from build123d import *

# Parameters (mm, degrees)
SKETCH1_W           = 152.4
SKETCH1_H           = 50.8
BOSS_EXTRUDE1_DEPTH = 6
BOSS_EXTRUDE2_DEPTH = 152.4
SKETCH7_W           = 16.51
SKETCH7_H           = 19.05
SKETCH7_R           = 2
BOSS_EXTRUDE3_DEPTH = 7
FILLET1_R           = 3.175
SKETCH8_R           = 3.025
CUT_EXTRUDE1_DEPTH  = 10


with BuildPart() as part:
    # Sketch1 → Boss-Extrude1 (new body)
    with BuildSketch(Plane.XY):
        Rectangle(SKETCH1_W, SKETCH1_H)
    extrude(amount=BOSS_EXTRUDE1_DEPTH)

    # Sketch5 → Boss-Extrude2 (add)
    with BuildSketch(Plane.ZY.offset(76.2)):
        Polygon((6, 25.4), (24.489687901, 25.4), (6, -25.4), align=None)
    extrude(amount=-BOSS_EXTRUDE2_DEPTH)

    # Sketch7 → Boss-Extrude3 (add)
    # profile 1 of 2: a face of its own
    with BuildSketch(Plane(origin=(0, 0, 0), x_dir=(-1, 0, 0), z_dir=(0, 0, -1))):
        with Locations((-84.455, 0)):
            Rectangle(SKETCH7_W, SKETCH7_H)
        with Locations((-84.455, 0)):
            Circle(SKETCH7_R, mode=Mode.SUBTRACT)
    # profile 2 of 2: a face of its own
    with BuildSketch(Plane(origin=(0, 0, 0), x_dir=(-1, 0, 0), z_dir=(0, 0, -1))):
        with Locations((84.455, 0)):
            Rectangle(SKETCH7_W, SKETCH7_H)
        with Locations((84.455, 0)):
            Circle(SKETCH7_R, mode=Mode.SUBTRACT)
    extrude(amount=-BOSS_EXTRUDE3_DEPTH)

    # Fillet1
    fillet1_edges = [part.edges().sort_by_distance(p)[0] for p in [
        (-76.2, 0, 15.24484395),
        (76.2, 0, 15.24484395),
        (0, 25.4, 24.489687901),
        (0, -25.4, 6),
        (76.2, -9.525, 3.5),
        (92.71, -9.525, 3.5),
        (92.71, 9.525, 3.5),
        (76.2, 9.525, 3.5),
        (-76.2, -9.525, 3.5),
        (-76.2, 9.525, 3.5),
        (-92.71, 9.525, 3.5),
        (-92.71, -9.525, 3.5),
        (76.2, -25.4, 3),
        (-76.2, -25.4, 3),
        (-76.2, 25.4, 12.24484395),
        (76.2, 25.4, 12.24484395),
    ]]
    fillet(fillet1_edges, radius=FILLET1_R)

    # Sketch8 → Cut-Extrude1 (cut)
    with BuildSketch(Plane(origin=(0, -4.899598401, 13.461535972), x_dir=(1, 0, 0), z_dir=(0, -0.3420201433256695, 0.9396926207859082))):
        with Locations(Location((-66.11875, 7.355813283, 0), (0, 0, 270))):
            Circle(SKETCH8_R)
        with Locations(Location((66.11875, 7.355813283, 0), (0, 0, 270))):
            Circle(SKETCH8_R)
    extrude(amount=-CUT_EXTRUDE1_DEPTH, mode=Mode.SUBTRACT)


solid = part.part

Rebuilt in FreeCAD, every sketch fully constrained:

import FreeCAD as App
import Part
import Sketcher
Q = App.Units.Quantity


def edges_at(feature, points):
    """Names of the edges that pass closest to the given points."""
    edges = feature.Shape.Edges
    near = lambda p: min(range(len(edges)), key=lambda i: edges[i].distToShape(Part.Vertex(*p))[0])
    return sorted({f"Edge{near(p) + 1}" for p in points})


def add_polygon(sketch, points):
    """Adds a closed chain of lines whose ends are joined by coincident constraints."""
    first, n = sketch.GeometryCount, len(points)
    for a, b in zip(points, points[1:] + points[:1]):
        sketch.addGeometry(Part.LineSegment(App.Vector(*a, 0), App.Vector(*b, 0)), False)
    for i in range(n):
        sketch.addConstraint(Sketcher.Constraint("Coincident", first + i, 2, first + (i + 1) % n, 1))

doc = App.newDocument("Part")
body = doc.addObject("PartDesign::Body", "Body")

sketch1 = doc.addObject("Sketcher::SketchObject", "Sketch")
body.addObject(sketch1)
sketch1.AttachmentSupport = (doc.XY_Plane, [""])
sketch1.MapMode = "FlatFace"
add_polygon(sketch1, [(-76, 25), (-76, -25), (76, -25), (76, 25)])
sketch1.addConstraint([
    Sketcher.Constraint("Vertical", 0),
    Sketcher.Constraint("Horizontal", 1),
    Sketcher.Constraint("Vertical", 2),
    Sketcher.Constraint("Horizontal", 3),
    Sketcher.Constraint("Symmetric", 0, 2, 2, 2, -1, 1),
    Sketcher.Constraint("DistanceX", 1, 1, 1, 2, Q("6 in")),
    Sketcher.Constraint("DistanceY", 0, 2, 0, 1, Q("2 in")),
])
pad1 = doc.addObject("PartDesign::Pad", "Pad")
body.addObject(pad1)
pad1.Profile = sketch1
pad1.Length = 6

sketch2 = doc.addObject("Sketcher::SketchObject", "Sketch001")
body.addObject(sketch2)
sketch2.AttachmentSupport = (doc.YZ_Plane, [""])
sketch2.MapMode = "FlatFace"
sketch2.AttachmentOffset = App.Placement(App.Vector(0, 0, -3 * 25.4), App.Rotation())
add_polygon(sketch2, [(25, 24), (25, 6), (-25, 6)])
sketch2.addConstraint([
    Sketcher.Constraint("Vertical", 0),
    Sketcher.Constraint("Horizontal", 1),
    Sketcher.Constraint("DistanceX", 1, 2, 1, 1, Q("2 in")),
    Sketcher.Constraint("DistanceX", -1, 1, 0, 2, Q("1 in")),
    Sketcher.Constraint("Angle", 2, Q("20 deg")),
    Sketcher.Constraint("DistanceY", -1, 1, 0, 2, Q("6 mm")),
])
pad2 = doc.addObject("PartDesign::Pad", "Pad001")
body.addObject(pad2)
pad2.Profile = sketch2
pad2.Length = Q("6 in")

sketch3 = doc.addObject("Sketcher::SketchObject", "Sketch002")
body.addObject(sketch3)
sketch3.AttachmentSupport = (doc.XY_Plane, [""])
sketch3.MapMode = "FlatFace"
add_polygon(sketch3, [(92.7, 9.5), (92.7, -9.5), (76.2, -9.5), (76.2, 9.5)])
sketch3.addGeometry(Part.Circle(App.Vector(84.5, 0, 0), App.Vector(0, 0, 1), 2), False)
add_polygon(sketch3, [(-76.2, 9.5), (-76.2, -9.5), (-92.7, -9.5), (-92.7, 9.5)])
sketch3.addGeometry(Part.Circle(App.Vector(-84.5, 0, 0), App.Vector(0, 0, 1), 2), False)
sketch3.addConstraint([
    Sketcher.Constraint("Vertical", 0),
    Sketcher.Constraint("Horizontal", 1),
    Sketcher.Constraint("Vertical", 2),
    Sketcher.Constraint("Horizontal", 3),
    Sketcher.Constraint("Vertical", 5),
    Sketcher.Constraint("Horizontal", 6),
    Sketcher.Constraint("Vertical", 7),
    Sketcher.Constraint("Horizontal", 8),
    Sketcher.Constraint("Equal", 4, 9),
    Sketcher.Constraint("Symmetric", 4, 3, 9, 3, -1, 1),
    Sketcher.Constraint("Symmetric", 2, 2, 5, 2, -1, 1),
    Sketcher.Constraint("Symmetric", 0, 2, 7, 2, -1, 1),
    Sketcher.Constraint("PointOnObject", 4, 3, -1),
    Sketcher.Constraint("Horizontal", 1, 2, 5, 2),
    Sketcher.Constraint("DistanceX", -1, 1, 1, 2, Q("3 in")),
    Sketcher.Constraint("DistanceX", 1, 2, 1, 1, Q("0.65 in")),
    Sketcher.Constraint("DistanceY", 0, 2, 0, 1, Q("0.75 in")),
    Sketcher.Constraint("Diameter", 4, Q("4 mm")),
    Sketcher.Constraint("DistanceX", 9, 3, 4, 3, Q("6.65 in")),
])
pad3 = doc.addObject("PartDesign::Pad", "Pad002")
body.addObject(pad3)
pad3.Profile = sketch3
pad3.Length = 7
doc.recompute()

fillet = doc.addObject("PartDesign::Fillet", "Fillet")
body.addObject(fillet)
fillet.Base = (pad3, edges_at(pad3, [
    (-76.2, 0, 15.245),
    (76.2, 0, 15.245),
    (0, 25.4, 24.49),
    (0, -25.4, 6),
    (76.2, -9.525, 3.5),
    (92.71, -9.525, 3.5),
    (92.71, 9.525, 3.5),
    (76.2, 9.525, 3.5),
    (-76.2, -9.525, 3.5),
    (-76.2, 9.525, 3.5),
    (-92.71, 9.525, 3.5),
    (-92.71, -9.525, 3.5),
    (76.2, -25.4, 3),
    (-76.2, -25.4, 3),
    (-76.2, 25.4, 12.245),
    (76.2, 25.4, 12.245),
]))
fillet.Radius = Q("0.125 in")

sketch4 = doc.addObject("Sketcher::SketchObject", "Sketch003")
body.addObject(sketch4)
sketch4.Placement = App.Placement(App.Vector(0, -4.899598, 13.461536), App.Rotation(App.Vector(1, 0, 0), App.Vector(0, 0.939692621, 0.342020143), App.Vector(0, -0.342020143, 0.939692621), "ZXY"))
sketch4.addGeometry([
    Part.Circle(App.Vector(-66.1, 7.4, 0), App.Vector(0, 0, 1), 3),
    Part.Circle(App.Vector(66.1, 7.4, 0), App.Vector(0, 0, 1), 3),
], False)
sketch4.addConstraint([
    Sketcher.Constraint("Equal", 0, 1),
    Sketcher.Constraint("Symmetric", 0, 3, 1, 3, -2),
    Sketcher.Constraint("Diameter", 0, Q("6.05 mm")),
    Sketcher.Constraint("DistanceX", 0, 3, 1, 3, Q("132.2375 mm")),
    Sketcher.Constraint("DistanceY", -1, 1, 0, 3, Q("7.355813 mm")),
])
pocket1 = doc.addObject("PartDesign::Pocket", "Pocket")
body.addObject(pocket1)
pocket1.Profile = sketch4
pocket1.Length = 10

doc.recompute()
